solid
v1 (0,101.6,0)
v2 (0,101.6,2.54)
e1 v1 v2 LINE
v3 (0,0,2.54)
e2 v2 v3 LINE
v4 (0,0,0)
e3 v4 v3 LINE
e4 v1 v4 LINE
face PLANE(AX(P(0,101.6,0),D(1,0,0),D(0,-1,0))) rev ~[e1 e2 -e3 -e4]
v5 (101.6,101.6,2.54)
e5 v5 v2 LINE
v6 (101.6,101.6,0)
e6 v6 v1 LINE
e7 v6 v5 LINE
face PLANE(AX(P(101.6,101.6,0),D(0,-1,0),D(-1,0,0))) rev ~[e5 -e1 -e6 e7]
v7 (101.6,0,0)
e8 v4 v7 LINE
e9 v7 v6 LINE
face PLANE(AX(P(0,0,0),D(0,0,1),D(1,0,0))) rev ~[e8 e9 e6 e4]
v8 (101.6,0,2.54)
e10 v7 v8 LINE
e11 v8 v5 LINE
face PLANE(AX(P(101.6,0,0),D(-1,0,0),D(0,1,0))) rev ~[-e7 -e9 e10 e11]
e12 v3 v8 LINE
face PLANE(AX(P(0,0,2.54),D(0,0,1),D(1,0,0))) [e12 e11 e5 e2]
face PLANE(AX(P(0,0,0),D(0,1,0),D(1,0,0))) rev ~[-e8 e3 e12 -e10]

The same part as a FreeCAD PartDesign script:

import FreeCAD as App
import Part
import Sketcher
from FreeCAD import Vector
Q = App.Units.Quantity

doc = App.newDocument("Part")
body = doc.addObject("PartDesign::Body", "Body")

# Sketch on XY plane
sketch1 = doc.addObject("Sketcher::SketchObject", "Sketch")
body.addObject(sketch1)
sketch1.AttachmentSupport = (doc.XY_Plane, [""])
sketch1.MapMode = "FlatFace"
sketch1.addGeometry([
    Part.LineSegment(Vector(0, 102, 0), Vector(0, 0, 0)),
    Part.LineSegment(Vector(0, 0, 0), Vector(102, 0, 0)),
    Part.LineSegment(Vector(102, 0, 0), Vector(102, 102, 0)),
    Part.LineSegment(Vector(102, 102, 0), Vector(0, 102, 0)),
], False)
sketch1.addConstraint([
    Sketcher.Constraint("Coincident", 0, 2, 1, 1),
    Sketcher.Constraint("Coincident", 1, 2, 2, 1),
    Sketcher.Constraint("Coincident", 2, 2, 3, 1),
    Sketcher.Constraint("Coincident", 3, 2, 0, 1),
    Sketcher.Constraint("Vertical", 0),
    Sketcher.Constraint("Horizontal", 1),
    Sketcher.Constraint("Vertical", 2),
    Sketcher.Constraint("Horizontal", 3),
    Sketcher.Constraint("Coincident", 0, 2, -1, 1),
    Sketcher.Constraint("Equal", 3, 0),
    Sketcher.Constraint("DistanceX", 1, 1, 1, 2, Q("4 in")),
])
pad1 = doc.addObject("PartDesign::Pad", "Pad")
body.addObject(pad1)
pad1.Profile = sketch1
pad1.Length = Q("0.1 in")

doc.recompute()
